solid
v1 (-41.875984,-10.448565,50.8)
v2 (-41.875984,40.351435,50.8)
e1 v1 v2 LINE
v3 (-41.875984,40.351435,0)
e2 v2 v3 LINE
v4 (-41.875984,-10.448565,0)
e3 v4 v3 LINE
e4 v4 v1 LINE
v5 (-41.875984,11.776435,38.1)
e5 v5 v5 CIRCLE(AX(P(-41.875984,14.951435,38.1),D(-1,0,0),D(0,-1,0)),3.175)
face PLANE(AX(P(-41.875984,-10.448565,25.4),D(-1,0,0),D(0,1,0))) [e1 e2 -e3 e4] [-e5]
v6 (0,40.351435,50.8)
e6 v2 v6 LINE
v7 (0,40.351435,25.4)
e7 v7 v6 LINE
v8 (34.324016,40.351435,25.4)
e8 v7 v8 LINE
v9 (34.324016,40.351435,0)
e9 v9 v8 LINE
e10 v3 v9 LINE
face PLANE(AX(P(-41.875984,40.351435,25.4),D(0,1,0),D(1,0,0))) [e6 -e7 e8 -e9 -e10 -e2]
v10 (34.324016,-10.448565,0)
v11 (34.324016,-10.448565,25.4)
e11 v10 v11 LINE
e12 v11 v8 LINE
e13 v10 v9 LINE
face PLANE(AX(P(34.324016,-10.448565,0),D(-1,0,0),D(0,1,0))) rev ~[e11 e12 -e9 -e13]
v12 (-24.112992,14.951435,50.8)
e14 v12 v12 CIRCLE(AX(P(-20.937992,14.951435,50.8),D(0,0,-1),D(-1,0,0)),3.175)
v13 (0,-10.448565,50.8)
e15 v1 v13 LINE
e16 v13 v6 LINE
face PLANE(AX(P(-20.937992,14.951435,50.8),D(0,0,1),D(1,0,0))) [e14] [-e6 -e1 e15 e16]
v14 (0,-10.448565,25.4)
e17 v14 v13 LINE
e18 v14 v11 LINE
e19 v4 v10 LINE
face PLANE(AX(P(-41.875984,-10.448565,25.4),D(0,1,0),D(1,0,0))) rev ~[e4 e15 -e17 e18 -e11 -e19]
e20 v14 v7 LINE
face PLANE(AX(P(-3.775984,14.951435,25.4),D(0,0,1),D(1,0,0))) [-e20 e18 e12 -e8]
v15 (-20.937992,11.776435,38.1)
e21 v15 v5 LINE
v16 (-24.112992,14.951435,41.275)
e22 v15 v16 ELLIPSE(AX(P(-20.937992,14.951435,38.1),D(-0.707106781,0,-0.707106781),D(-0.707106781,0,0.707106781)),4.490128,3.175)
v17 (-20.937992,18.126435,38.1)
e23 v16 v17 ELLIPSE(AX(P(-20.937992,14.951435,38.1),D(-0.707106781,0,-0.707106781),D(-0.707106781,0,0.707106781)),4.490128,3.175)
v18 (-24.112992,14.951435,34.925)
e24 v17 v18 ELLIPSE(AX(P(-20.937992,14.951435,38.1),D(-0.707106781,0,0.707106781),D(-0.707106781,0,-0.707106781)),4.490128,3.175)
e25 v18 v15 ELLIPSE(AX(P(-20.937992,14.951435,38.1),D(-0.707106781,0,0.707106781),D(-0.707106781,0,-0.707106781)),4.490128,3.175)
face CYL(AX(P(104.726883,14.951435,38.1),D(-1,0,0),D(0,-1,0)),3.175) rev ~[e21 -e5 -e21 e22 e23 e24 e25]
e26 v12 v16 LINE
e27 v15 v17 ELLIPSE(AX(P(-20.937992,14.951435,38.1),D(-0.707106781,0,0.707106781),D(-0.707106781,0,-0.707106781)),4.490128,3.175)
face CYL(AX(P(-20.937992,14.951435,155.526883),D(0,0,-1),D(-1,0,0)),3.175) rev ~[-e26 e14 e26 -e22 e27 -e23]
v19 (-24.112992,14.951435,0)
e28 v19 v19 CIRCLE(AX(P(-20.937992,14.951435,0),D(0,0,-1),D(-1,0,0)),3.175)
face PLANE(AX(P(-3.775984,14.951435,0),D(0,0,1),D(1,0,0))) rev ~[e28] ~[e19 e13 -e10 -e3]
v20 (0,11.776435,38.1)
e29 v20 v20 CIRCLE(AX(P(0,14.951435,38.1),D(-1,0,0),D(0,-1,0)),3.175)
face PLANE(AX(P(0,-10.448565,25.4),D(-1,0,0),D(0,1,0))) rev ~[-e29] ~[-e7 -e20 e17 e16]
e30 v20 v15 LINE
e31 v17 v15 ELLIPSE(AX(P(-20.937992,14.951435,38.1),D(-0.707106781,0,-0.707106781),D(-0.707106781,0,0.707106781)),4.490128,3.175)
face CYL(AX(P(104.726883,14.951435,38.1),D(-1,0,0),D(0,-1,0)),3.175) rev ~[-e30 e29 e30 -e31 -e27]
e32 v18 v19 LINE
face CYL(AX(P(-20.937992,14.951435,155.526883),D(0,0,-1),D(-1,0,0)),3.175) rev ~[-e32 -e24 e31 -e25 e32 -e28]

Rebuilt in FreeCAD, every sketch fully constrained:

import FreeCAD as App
import Part
import Sketcher
from FreeCAD import Vector
Q = App.Units.Quantity

doc = App.newDocument("Part")
params = doc.addObject("Spreadsheet::Sheet", "Params")
for row, (alias, value) in enumerate([
    ("sketch1_width", "3 in"),
    ("sketch1_height", "2 in"),
    ("pad1_length", "1 in"),
    ("sketch2_height", "2 in"),
    ("pad2_length", "1 in"),
    ("sketch3_diameter", "0.25 in"),
    ("hole_diameter", "0.25 in"),
    ("sketch4_diameter", "0.25 in"),
    ("hole2_diameter", "0.25 in"),
], start=1):
    params.set(f"A{row}", alias)
    params.set(f"B{row}", "=" + value)
    params.setAlias(f"B{row}", alias)

body = doc.addObject("PartDesign::Body", "Body")

sketch1 = doc.addObject("Sketcher::SketchObject", "Sketch")
body.addObject(sketch1)
sketch1.AttachmentSupport = (doc.XY_Plane, [""])
sketch1.MapMode = "FlatFace"
sketch1.addGeometry([
    Part.LineSegment(Vector(-41.875984, 40.351435, 0), Vector(-41.875984, -10.448565, 0)),
    Part.LineSegment(Vector(-41.875984, -10.448565, 0), Vector(34.324016, -10.448565, 0)),
    Part.LineSegment(Vector(34.324016, -10.448565, 0), Vector(34.324016, 40.351435, 0)),
    Part.LineSegment(Vector(34.324016, 40.351435, 0), Vector(-41.875984, 40.351435, 0)),
], False)
sketch1.addConstraint([
    Sketcher.Constraint("Coincident", 0, 2, 1, 1),
    Sketcher.Constraint("Coincident", 1, 2, 2, 1),
    Sketcher.Constraint("Coincident", 2, 2, 3, 1),
    Sketcher.Constraint("Coincident", 3, 2, 0, 1),
    Sketcher.Constraint("Vertical", 0),
    Sketcher.Constraint("Horizontal", 1),
    Sketcher.Constraint("Vertical", 2),
    Sketcher.Constraint("Horizontal", 3),
    Sketcher.Constraint("DistanceX", 1, 1, 1, 2, Q("3 in")),
    Sketcher.Constraint("DistanceY", 0, 2, 0, 1, Q("2 in")),
    Sketcher.Constraint("DistanceX", 0, 2, -1, 1, Q("41.875984 mm")),
    Sketcher.Constraint("DistanceY", 0, 2, -1, 1, Q("10.448565 mm")),
])
sketch1.setExpression("Constraints[8]", "Params.sketch1_width")
sketch1.setExpression("Constraints[9]", "Params.sketch1_height")
pad1 = doc.addObject("PartDesign::Pad", "Pad")
body.addObject(pad1)
pad1.Profile = sketch1
pad1.setExpression("Length", "Params.pad1_length")

sketch2 = doc.addObject("Sketcher::SketchObject", "Sketch001")
body.addObject(sketch2)
sketch2.AttachmentSupport = (doc.XY_Plane, [""])
sketch2.MapMode = "FlatFace"
sketch2.AttachmentOffset = App.Placement(Vector(0, 0, 1 * 25.4), App.Rotation())
sketch2.addGeometry([
    Part.LineSegment(Vector(-41.875984, 40.351435, 0), Vector(-41.875984, -10.448565, 0)),
    Part.LineSegment(Vector(-41.875984, -10.448565, 0), Vector(0, -10.448565, 0)),
    Part.LineSegment(Vector(0, -10.448565, 0), Vector(0, 40.351435, 0)),
    Part.LineSegment(Vector(0, 40.351435, 0), Vector(-41.875984, 40.351435, 0)),
], False)
sketch2.addConstraint([
    Sketcher.Constraint("Coincident", 0, 2, 1, 1),
    Sketcher.Constraint("Coincident", 1, 2, 2, 1),
    Sketcher.Constraint("Coincident", 2, 2, 3, 1),
    Sketcher.Constraint("Coincident", 3, 2, 0, 1),
    Sketcher.Constraint("Vertical", 0),
    Sketcher.Constraint("Horizontal", 1),
    Sketcher.Constraint("Vertical", 2),
    Sketcher.Constraint("Horizontal", 3),
    Sketcher.Constraint("PointOnObject", 1, 2, -2),
    Sketcher.Constraint("DistanceY", 0, 2, 0, 1, Q("2 in")),
    Sketcher.Constraint("DistanceX", 1, 1, 1, 2, Q("41.875984 mm")),
    Sketcher.Constraint("DistanceY", 0, 2, -1, 1, Q("10.448565 mm")),
])
sketch2.setExpression("Constraints[9]", "Params.sketch2_height")
pad2 = doc.addObject("PartDesign::Pad", "Pad001")
body.addObject(pad2)
pad2.Profile = sketch2
pad2.setExpression("Length", "Params.pad2_length")

sketch3 = doc.addObject("Sketcher::SketchObject", "Sketch002")
body.addObject(sketch3)
sketch3.AttachmentSupport = (doc.YZ_Plane, [""])
sketch3.MapMode = "FlatFace"
sketch3.addGeometry(Part.Circle(Vector(14.951435, 38.1, 0), Vector(0, 0, 1), 3.175), False)
sketch3.addConstraint([
    Sketcher.Constraint("Diameter", 0, Q("0.25 in")),
    Sketcher.Constraint("DistanceY", -1, 1, 0, 3, Q("1.5 in")),
    Sketcher.Constraint("DistanceX", -1, 1, 0, 3, Q("14.951435 mm")),
])
sketch3.setExpression("Constraints[0]", "Params.sketch3_diameter")
doc.recompute()
hole = doc.addObject("PartDesign::Hole", "Hole")
body.addObject(hole)
hole.Profile = sketch3
hole.ThreadType = "None"
hole.setExpression("Diameter", "Params.hole_diameter")
hole.DepthType = "ThroughAll"

sketch4 = doc.addObject("Sketcher::SketchObject", "Sketch003")
body.addObject(sketch4)
sketch4.AttachmentSupport = (doc.XY_Plane, [""])
sketch4.MapMode = "FlatFace"
sketch4.AttachmentOffset = App.Placement(Vector(0, 0, 2 * 25.4), App.Rotation())
sketch4.addGeometry(Part.Circle(Vector(-20.937992, 14.951435, 0), Vector(0, 0, 1), 3.175), False)
sketch4.addConstraint([
    Sketcher.Constraint("Diameter", 0, Q("0.25 in")),
    Sketcher.Constraint("DistanceX", 0, 3, -1, 1, Q("20.937992 mm")),
    Sketcher.Constraint("DistanceY", -1, 1, 0, 3, Q("14.951435 mm")),
])
sketch4.setExpression("Constraints[0]", "Params.sketch4_diameter")
doc.recompute()
hole2 = doc.addObject("PartDesign::Hole", "Hole001")
body.addObject(hole2)
hole2.Profile = sketch4
hole2.ThreadType = "None"
hole2.setExpression("Diameter", "Params.hole2_diameter")
hole2.DepthType = "ThroughAll"

doc.recompute()
